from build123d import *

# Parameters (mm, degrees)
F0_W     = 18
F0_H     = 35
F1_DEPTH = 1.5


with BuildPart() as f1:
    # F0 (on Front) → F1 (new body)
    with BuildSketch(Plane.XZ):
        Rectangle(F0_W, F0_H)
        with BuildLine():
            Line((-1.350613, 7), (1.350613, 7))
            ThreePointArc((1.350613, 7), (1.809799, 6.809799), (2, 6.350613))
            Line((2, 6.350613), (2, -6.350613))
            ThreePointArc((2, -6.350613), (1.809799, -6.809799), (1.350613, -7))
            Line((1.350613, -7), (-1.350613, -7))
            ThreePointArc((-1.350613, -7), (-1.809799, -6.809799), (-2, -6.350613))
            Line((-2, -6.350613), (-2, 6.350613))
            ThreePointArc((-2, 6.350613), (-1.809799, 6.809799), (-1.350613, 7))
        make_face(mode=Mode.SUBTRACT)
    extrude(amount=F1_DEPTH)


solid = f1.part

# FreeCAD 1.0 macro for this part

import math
import FreeCAD as App
import Part
import Sketcher
Q = App.Units.Quantity

doc = App.newDocument("Part")
body = doc.addObject("PartDesign::Body", "Body")

sketch1 = body.newObject("Sketcher::SketchObject", "Sketch")
sketch1.AttachmentSupport = (doc.getObject("XZ_Plane"), [""])
sketch1.MapMode = "FlatFace"
sketch1.addGeometry(Part.LineSegment(App.Vector(-9, 17.5, 0), App.Vector(-9, -17.5, 0)), False)
sketch1.addGeometry(Part.LineSegment(App.Vector(-9, -17.5, 0), App.Vector(9, -17.5, 0)), False)
sketch1.addGeometry(Part.LineSegment(App.Vector(9, -17.5, 0), App.Vector(9, 17.5, 0)), False)
sketch1.addGeometry(Part.LineSegment(App.Vector(9, 17.5, 0), App.Vector(-9, 17.5, 0)), False)
sketch1.addGeometry(Part.ArcOfCircle(Part.Circle(App.Vector(-1.350613, 6.350613, 0), App.Vector(0, 0, 1), 0.649387), math.radians(89.999985), math.radians(180.000015)), False)
sketch1.addGeometry(Part.LineSegment(App.Vector(-1.350613, 7, 0), App.Vector(1.350613, 7, 0)), False)
sketch1.addGeometry(Part.ArcOfCircle(Part.Circle(App.Vector(1.350613, 6.350613, 0), App.Vector(0, 0, 1), 0.649387), math.radians(-0.000015), math.radians(90.000015)), False)
sketch1.addGeometry(Part.LineSegment(App.Vector(2, 6.350613, 0), App.Vector(2, -6.350613, 0)), False)
sketch1.addGeometry(Part.ArcOfCircle(Part.Circle(App.Vector(1.350613, -6.350613, 0), App.Vector(0, 0, 1), 0.649387), math.radians(-90.000015), math.radians(0.000015)), False)
sketch1.addGeometry(Part.LineSegment(App.Vector(1.350613, -7, 0), App.Vector(-1.350613, -7, 0)), False)
sketch1.addGeometry(Part.ArcOfCircle(Part.Circle(App.Vector(-1.350613, -6.350613, 0), App.Vector(0, 0, 1), 0.649387), math.radians(179.999985), math.radians(270.000015)), False)
sketch1.addGeometry(Part.LineSegment(App.Vector(-2, -6.350613, 0), App.Vector(-2, 6.350613, 0)), False)
sketch1.addConstraint(Sketcher.Constraint("Coincident", 0, 2, 1, 1))
sketch1.addConstraint(Sketcher.Constraint("Coincident", 1, 2, 2, 1))
sketch1.addConstraint(Sketcher.Constraint("Coincident", 2, 2, 3, 1))
sketch1.addConstraint(Sketcher.Constraint("Coincident", 3, 2, 0, 1))
sketch1.addConstraint(Sketcher.Constraint("Tangent", 4, 1, 5, 1))
sketch1.addConstraint(Sketcher.Constraint("Tangent", 5, 2, 6, 2))
sketch1.addConstraint(Sketcher.Constraint("Tangent", 6, 1, 7, 1))
sketch1.addConstraint(Sketcher.Constraint("Tangent", 7, 2, 8, 2))
sketch1.addConstraint(Sketcher.Constraint("Tangent", 8, 1, 9, 1))
sketch1.addConstraint(Sketcher.Constraint("Tangent", 9, 2, 10, 2))
sketch1.addConstraint(Sketcher.Constraint("Tangent", 10, 1, 11, 1))
sketch1.addConstraint(Sketcher.Constraint("Tangent", 11, 2, 4, 2))
sketch1.addConstraint(Sketcher.Constraint("Vertical", 0))
sketch1.addConstraint(Sketcher.Constraint("Horizontal", 1))
sketch1.addConstraint(Sketcher.Constraint("Vertical", 2))
sketch1.addConstraint(Sketcher.Constraint("Horizontal", 3))
sketch1.addConstraint(Sketcher.Constraint("Horizontal", 5))
sketch1.addConstraint(Sketcher.Constraint("Vertical", 7))
sketch1.addConstraint(Sketcher.Constraint("Horizontal", 9))
sketch1.addConstraint(Sketcher.Constraint("Vertical", 11))
sketch1.addConstraint(Sketcher.Constraint("Equal", 4, 6))
sketch1.addConstraint(Sketcher.Constraint("Equal", 6, 8))
sketch1.addConstraint(Sketcher.Constraint("Equal", 8, 10))
sketch1.addConstraint(Sketcher.Constraint("Symmetric", 4, 3, 8, 3, -1, 1))
sketch1.addConstraint(Sketcher.Constraint("Symmetric", 0, 2, 2, 2, -1, 1))
sketch1.addConstraint(Sketcher.Constraint("DistanceX", 1, 1, 1, 2, Q("18 mm")))
sketch1.addConstraint(Sketcher.Constraint("DistanceY", 0, 2, 0, 1, Q("35 mm")))
sketch1.addConstraint(Sketcher.Constraint("DistanceY", -1, 1, 4, 1, Q("7 mm")))
sketch1.addConstraint(Sketcher.Constraint("DistanceX", -1, 1, 6, 1, Q("2 mm")))
sketch1.addConstraint(Sketcher.Constraint("Radius", 4, Q("0.649387 mm")))
pad1 = body.newObject("PartDesign::Pad", "Pad")
pad1.Profile = sketch1
pad1.Length = 1.5

doc.recompute()
